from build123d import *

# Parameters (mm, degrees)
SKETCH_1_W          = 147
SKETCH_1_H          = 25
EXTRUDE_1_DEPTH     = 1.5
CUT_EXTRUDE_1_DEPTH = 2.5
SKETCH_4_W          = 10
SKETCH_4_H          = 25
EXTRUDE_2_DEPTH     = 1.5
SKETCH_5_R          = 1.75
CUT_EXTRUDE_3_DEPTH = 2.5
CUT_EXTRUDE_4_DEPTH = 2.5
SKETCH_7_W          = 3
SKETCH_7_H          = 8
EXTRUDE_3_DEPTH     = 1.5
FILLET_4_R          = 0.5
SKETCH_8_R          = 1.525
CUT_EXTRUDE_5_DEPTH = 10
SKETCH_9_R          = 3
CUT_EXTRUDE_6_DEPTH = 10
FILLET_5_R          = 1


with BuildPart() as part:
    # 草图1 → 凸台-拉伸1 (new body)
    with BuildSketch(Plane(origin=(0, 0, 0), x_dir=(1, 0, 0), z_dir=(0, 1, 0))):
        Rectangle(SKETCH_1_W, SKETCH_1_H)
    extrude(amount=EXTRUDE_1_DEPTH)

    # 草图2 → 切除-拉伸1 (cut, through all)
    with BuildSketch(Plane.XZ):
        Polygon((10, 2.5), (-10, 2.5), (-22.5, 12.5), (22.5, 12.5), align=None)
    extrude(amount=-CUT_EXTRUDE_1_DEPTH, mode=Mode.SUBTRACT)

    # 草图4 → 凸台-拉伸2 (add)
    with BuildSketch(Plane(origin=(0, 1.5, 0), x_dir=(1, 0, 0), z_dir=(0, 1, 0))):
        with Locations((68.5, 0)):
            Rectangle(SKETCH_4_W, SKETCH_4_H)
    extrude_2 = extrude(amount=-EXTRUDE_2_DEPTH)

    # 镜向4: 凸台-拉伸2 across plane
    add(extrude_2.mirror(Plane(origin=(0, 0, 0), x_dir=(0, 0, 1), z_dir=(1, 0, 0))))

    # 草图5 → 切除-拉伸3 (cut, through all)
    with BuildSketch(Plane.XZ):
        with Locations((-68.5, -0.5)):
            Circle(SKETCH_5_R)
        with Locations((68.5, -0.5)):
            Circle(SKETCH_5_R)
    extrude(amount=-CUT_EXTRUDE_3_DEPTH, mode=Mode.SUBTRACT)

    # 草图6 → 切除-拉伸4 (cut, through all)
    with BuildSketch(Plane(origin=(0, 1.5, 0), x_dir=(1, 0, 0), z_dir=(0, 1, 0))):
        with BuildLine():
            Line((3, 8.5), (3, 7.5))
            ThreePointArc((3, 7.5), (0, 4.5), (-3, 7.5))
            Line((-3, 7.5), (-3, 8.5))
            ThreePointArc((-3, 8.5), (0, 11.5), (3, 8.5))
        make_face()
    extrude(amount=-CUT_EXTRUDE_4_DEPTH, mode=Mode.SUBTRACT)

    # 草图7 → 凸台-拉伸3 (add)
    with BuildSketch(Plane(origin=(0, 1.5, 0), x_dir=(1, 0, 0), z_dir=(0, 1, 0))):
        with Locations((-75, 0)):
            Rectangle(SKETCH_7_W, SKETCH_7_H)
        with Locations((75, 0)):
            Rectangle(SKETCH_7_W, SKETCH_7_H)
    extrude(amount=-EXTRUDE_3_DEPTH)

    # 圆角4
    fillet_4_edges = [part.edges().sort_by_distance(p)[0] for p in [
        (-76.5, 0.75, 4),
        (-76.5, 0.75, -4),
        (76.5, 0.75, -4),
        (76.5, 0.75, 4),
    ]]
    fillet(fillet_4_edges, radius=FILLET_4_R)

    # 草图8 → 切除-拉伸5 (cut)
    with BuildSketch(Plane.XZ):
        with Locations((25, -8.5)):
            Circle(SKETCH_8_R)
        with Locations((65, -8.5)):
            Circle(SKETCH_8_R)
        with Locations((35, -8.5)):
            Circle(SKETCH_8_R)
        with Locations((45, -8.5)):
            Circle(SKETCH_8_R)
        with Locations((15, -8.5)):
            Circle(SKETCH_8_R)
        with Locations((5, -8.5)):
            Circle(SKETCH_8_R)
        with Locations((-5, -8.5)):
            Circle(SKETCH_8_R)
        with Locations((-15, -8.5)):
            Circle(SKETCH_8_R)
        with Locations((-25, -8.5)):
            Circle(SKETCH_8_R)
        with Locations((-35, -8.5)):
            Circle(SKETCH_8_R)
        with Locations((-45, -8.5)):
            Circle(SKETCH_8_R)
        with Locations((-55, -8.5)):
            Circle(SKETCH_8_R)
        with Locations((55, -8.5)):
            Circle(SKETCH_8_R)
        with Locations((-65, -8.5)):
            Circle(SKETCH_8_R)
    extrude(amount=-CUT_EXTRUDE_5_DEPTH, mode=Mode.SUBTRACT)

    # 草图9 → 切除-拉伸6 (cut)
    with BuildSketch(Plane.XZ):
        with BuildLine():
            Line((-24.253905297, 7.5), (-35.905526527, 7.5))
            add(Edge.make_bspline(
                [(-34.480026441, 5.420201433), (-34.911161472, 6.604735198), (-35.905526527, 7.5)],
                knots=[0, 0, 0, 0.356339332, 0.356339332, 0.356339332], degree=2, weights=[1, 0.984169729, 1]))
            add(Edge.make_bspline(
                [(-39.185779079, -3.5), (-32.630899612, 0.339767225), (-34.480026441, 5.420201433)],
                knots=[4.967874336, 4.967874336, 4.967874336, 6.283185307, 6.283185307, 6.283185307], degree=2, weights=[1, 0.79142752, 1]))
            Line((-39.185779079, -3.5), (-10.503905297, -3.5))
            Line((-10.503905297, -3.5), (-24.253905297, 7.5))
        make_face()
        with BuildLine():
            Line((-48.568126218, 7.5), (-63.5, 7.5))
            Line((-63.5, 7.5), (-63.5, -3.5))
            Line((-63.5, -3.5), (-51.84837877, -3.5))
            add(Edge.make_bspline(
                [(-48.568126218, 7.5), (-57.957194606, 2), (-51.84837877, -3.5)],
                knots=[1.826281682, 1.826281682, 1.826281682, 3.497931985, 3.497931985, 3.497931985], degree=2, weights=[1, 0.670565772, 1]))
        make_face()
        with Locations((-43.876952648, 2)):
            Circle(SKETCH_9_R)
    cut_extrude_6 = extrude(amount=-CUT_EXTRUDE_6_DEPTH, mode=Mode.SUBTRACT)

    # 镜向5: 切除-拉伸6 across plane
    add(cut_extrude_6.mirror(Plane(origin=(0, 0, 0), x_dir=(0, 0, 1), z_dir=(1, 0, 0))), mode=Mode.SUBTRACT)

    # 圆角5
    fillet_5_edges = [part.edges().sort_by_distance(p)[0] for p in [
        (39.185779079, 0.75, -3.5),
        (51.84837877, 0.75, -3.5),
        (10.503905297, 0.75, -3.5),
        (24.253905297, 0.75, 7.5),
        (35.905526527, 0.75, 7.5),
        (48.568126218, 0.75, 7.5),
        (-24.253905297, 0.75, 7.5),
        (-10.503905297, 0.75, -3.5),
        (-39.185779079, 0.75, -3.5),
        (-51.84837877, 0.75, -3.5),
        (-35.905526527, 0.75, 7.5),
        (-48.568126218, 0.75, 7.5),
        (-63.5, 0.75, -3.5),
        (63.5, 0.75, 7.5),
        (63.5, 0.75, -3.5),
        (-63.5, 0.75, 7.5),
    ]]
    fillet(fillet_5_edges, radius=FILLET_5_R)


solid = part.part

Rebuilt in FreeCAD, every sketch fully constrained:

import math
import FreeCAD as App
import Part
import Sketcher
Q = App.Units.Quantity


def edges_at(feature, points):
    """Names of the edges that pass closest to the given points."""
    edges = feature.Shape.Edges
    near = lambda p: min(range(len(edges)), key=lambda i: edges[i].distToShape(Part.Vertex(*p))[0])
    return sorted({f"Edge{near(p) + 1}" for p in points})


def add_polygon(sketch, points):
    """Adds a closed chain of lines whose ends are joined by coincident constraints."""
    first, n = sketch.GeometryCount, len(points)
    for a, b in zip(points, points[1:] + points[:1]):
        sketch.addGeometry(Part.LineSegment(App.Vector(*a, 0), App.Vector(*b, 0)), False)
    for i in range(n):
        sketch.addConstraint(Sketcher.Constraint("Coincident", first + i, 2, first + (i + 1) % n, 1))

doc = App.newDocument("Part")
body = doc.addObject("PartDesign::Body", "Body")

# Sketch on XZ plane
sketch1 = body.newObject("Sketcher::SketchObject", "Sketch")
sketch1.AttachmentSupport = (doc.getObject("XZ_Plane"), [""])
sketch1.MapMode = "FlatFace"
add_polygon(sketch1, [(-74, -12), (-74, 12), (74, 12), (74, -12)])  # lines 0-3
sketch1.addConstraint(Sketcher.Constraint("Vertical", 0))
sketch1.addConstraint(Sketcher.Constraint("Horizontal", 1))
sketch1.addConstraint(Sketcher.Constraint("Vertical", 2))
sketch1.addConstraint(Sketcher.Constraint("Horizontal", 3))
sketch1.addConstraint(Sketcher.Constraint("Symmetric", 0, 2, 2, 2, -1, 1))
sketch1.addConstraint(Sketcher.Constraint("DistanceX", 1, 1, 1, 2, Q("147 mm")))
sketch1.addConstraint(Sketcher.Constraint("DistanceY", 0, 1, 0, 2, Q("25 mm")))
pad1 = body.newObject("PartDesign::Pad", "Pad")
pad1.Profile = sketch1
pad1.Length = 1.5
pad1.Reversed = True

# Sketch on XZ plane
sketch2 = body.newObject("Sketcher::SketchObject", "Sketch001")
sketch2.AttachmentSupport = (doc.getObject("XZ_Plane"), [""])
sketch2.MapMode = "FlatFace"
add_polygon(sketch2, [(-10, 2), (10, 2), (22, 12), (-22, 12)])  # lines 0-3
sketch2.addConstraint(Sketcher.Constraint("Horizontal", 0))
sketch2.addConstraint(Sketcher.Constraint("Horizontal", 2))
sketch2.addConstraint(Sketcher.Constraint("Equal", 1, 3))
sketch2.addConstraint(Sketcher.Constraint("DistanceX", 0, 1, 0, 2, Q("20 mm")))
sketch2.addConstraint(Sketcher.Constraint("DistanceX", 2, 2, 2, 1, Q("45 mm")))
sketch2.addConstraint(Sketcher.Constraint("DistanceX", -1, 1, 0, 2, Q("10 mm")))
sketch2.addConstraint(Sketcher.Constraint("DistanceY", 0, 2, 1, 2, Q("10 mm")))
sketch2.addConstraint(Sketcher.Constraint("DistanceY", -1, 1, 0, 2, Q("2.5 mm")))
pocket1 = body.newObject("PartDesign::Pocket", "Pocket")
pocket1.Profile = sketch2
pocket1.Type = "ThroughAll"

# Sketch on XZ plane
sketch3 = body.newObject("Sketcher::SketchObject", "Sketch002")
sketch3.AttachmentSupport = (doc.getObject("XZ_Plane"), [""])
sketch3.MapMode = "FlatFace"
sketch3.AttachmentOffset = App.Placement(App.Vector(0, 0, -1.5), App.Rotation())
add_polygon(sketch3, [(64, -12), (64, 12), (74, 12), (74, -12)])  # lines 0-3
sketch3.addConstraint(Sketcher.Constraint("Vertical", 0))
sketch3.addConstraint(Sketcher.Constraint("Horizontal", 1))
sketch3.addConstraint(Sketcher.Constraint("Vertical", 2))
sketch3.addConstraint(Sketcher.Constraint("Horizontal", 3))
sketch3.addConstraint(Sketcher.Constraint("DistanceX", 1, 1, 1, 2, Q("10 mm")))
sketch3.addConstraint(Sketcher.Constraint("DistanceY", 0, 1, 0, 2, Q("25 mm")))
sketch3.addConstraint(Sketcher.Constraint("DistanceX", -1, 1, 0, 2, Q("63.5 mm")))
sketch3.addConstraint(Sketcher.Constraint("DistanceY", -1, 1, 0, 2, Q("12.5 mm")))
pad2 = body.newObject("PartDesign::Pad", "Pad001")
pad2.Profile = sketch3
pad2.Length = 1.5
doc.recompute()

mirrored = body.newObject("PartDesign::Mirrored", "Mirrored")
mirrored.Originals = [pad2]
mirrored.MirrorPlane = (doc.getObject("YZ_Plane"), [""])
body.Tip = mirrored

# Sketch on XZ plane
sketch4 = body.newObject("Sketcher::SketchObject", "Sketch003")
sketch4.AttachmentSupport = (doc.getObject("XZ_Plane"), [""])
sketch4.MapMode = "FlatFace"
sketch4.addGeometry(Part.Circle(App.Vector(-68.5, -0.5, 0), App.Vector(0, 0, 1), 1.8), False)
sketch4.addGeometry(Part.Circle(App.Vector(68.5, -0.5, 0), App.Vector(0, 0, 1), 1.8), False)
sketch4.addConstraint(Sketcher.Constraint("Equal", 0, 1))
sketch4.addConstraint(Sketcher.Constraint("Symmetric", 0, 3, 1, 3, -2))
sketch4.addConstraint(Sketcher.Constraint("Diameter", 0, Q("3.5 mm")))
sketch4.addConstraint(Sketcher.Constraint("DistanceX", 0, 3, 1, 3, Q("137 mm")))
sketch4.addConstraint(Sketcher.Constraint("DistanceY", 0, 3, -1, 1, Q("0.5 mm")))
pocket2 = body.newObject("PartDesign::Pocket", "Pocket001")
pocket2.Profile = sketch4
pocket2.Type = "ThroughAll"

# Sketch on XZ plane
sketch5 = body.newObject("Sketcher::SketchObject", "Sketch004")
sketch5.AttachmentSupport = (doc.getObject("XZ_Plane"), [""])
sketch5.MapMode = "FlatFace"
sketch5.AttachmentOffset = App.Placement(App.Vector(0, 0, -1.5), App.Rotation())
sketch5.addGeometry(Part.LineSegment(App.Vector(3, -7.5, 0), App.Vector(3, -8.5, 0)), False)
sketch5.addGeometry(Part.ArcOfCircle(Part.Circle(App.Vector(0, -8.5, 0), App.Vector(0, 0, 1), 3), math.radians(180), math.radians(360)), False)
sketch5.addGeometry(Part.LineSegment(App.Vector(-3, -8.5, 0), App.Vector(-3, -7.5, 0)), False)
sketch5.addGeometry(Part.ArcOfCircle(Part.Circle(App.Vector(0, -7.5, 0), App.Vector(0, 0, 1), 3), math.radians(0), math.radians(180)), False)
sketch5.addConstraint(Sketcher.Constraint("Tangent", 0, 2, 1, 2))
sketch5.addConstraint(Sketcher.Constraint("Tangent", 1, 1, 2, 1))
sketch5.addConstraint(Sketcher.Constraint("Tangent", 2, 2, 3, 2))
sketch5.addConstraint(Sketcher.Constraint("Tangent", 3, 1, 0, 1))
sketch5.addConstraint(Sketcher.Constraint("Vertical", 0))
sketch5.addConstraint(Sketcher.Constraint("Vertical", 2))
sketch5.addConstraint(Sketcher.Constraint("PointOnObject", 1, 3, -2))
sketch5.addConstraint(Sketcher.Constraint("Radius", 1, Q("3 mm")))
sketch5.addConstraint(Sketcher.Constraint("DistanceY", 0, 2, 0, 1, Q("1 mm")))
sketch5.addConstraint(Sketcher.Constraint("DistanceY", 1, 3, -1, 1, Q("8.5 mm")))
pocket3 = body.newObject("PartDesign::Pocket", "Pocket002")
pocket3.Profile = sketch5
pocket3.Type = "ThroughAll"
pocket3.Reversed = True

# Sketch on XZ plane
sketch6 = body.newObject("Sketcher::SketchObject", "Sketch005")
sketch6.AttachmentSupport = (doc.getObject("XZ_Plane"), [""])
sketch6.MapMode = "FlatFace"
sketch6.AttachmentOffset = App.Placement(App.Vector(0, 0, -1.5), App.Rotation())
add_polygon(sketch6, [(-76.5, -4), (-76.5, 4), (-73.5, 4), (-73.5, -4)])  # lines 0-3
add_polygon(sketch6, [(73.5, -4), (73.5, 4), (76.5, 4), (76.5, -4)])  # lines 4-7
sketch6.addConstraint(Sketcher.Constraint("Vertical", 0))
sketch6.addConstraint(Sketcher.Constraint("Horizontal", 1))
sketch6.addConstraint(Sketcher.Constraint("Vertical", 2))
sketch6.addConstraint(Sketcher.Constraint("Horizontal", 3))
sketch6.addConstraint(Sketcher.Constraint("Vertical", 4))
sketch6.addConstraint(Sketcher.Constraint("Horizontal", 5))
sketch6.addConstraint(Sketcher.Constraint("Vertical", 6))
sketch6.addConstraint(Sketcher.Constraint("Horizontal", 7))
sketch6.addConstraint(Sketcher.Constraint("Symmetric", 2, 2, 4, 2, -1, 1))
sketch6.addConstraint(Sketcher.Constraint("Symmetric", 0, 2, 6, 2, -1, 1))
sketch6.addConstraint(Sketcher.Constraint("Horizontal", 1, 2, 4, 2))
sketch6.addConstraint(Sketcher.Constraint("DistanceX", 1, 1, 1, 2, Q("3 mm")))
sketch6.addConstraint(Sketcher.Constraint("DistanceY", 0, 1, 0, 2, Q("8 mm")))
sketch6.addConstraint(Sketcher.Constraint("DistanceX", 1, 2, 4, 2, Q("147 mm")))
pad3 = body.newObject("PartDesign::Pad", "Pad002")
pad3.Profile = sketch6
pad3.Length = 1.5
doc.recompute()

fillet = body.newObject("PartDesign::Fillet", "Fillet")
fillet.Base = (pad3, edges_at(pad3, [
    (-76.5, 0.75, 4),
    (-76.5, 0.75, -4),
    (76.5, 0.75, -4),
    (76.5, 0.75, 4),
]))
fillet.Radius = 0.5

# Sketch on XZ plane
sketch7 = body.newObject("Sketcher::SketchObject", "Sketch006")
sketch7.AttachmentSupport = (doc.getObject("XZ_Plane"), [""])
sketch7.MapMode = "FlatFace"
sketch7.addGeometry(Part.Circle(App.Vector(25, -8.5, 0), App.Vector(0, 0, 1), 1.5), False)
sketch7.addGeometry(Part.Circle(App.Vector(65, -8.5, 0), App.Vector(0, 0, 1), 1.5), False)
sketch7.addGeometry(Part.Circle(App.Vector(35, -8.5, 0), App.Vector(0, 0, 1), 1.5), False)
sketch7.addGeometry(Part.Circle(App.Vector(45, -8.5, 0), App.Vector(0, 0, 1), 1.5), False)
sketch7.addGeometry(Part.Circle(App.Vector(15, -8.5, 0), App.Vector(0, 0, 1), 1.5), False)
sketch7.addGeometry(Part.Circle(App.Vector(5, -8.5, 0), App.Vector(0, 0, 1), 1.5), False)
sketch7.addGeometry(Part.Circle(App.Vector(-5, -8.5, 0), App.Vector(0, 0, 1), 1.5), False)
sketch7.addGeometry(Part.Circle(App.Vector(-15, -8.5, 0), App.Vector(0, 0, 1), 1.5), False)
sketch7.addGeometry(Part.Circle(App.Vector(-25, -8.5, 0), App.Vector(0, 0, 1), 1.5), False)
sketch7.addGeometry(Part.Circle(App.Vector(-35, -8.5, 0), App.Vector(0, 0, 1), 1.5), False)
sketch7.addGeometry(Part.Circle(App.Vector(-45, -8.5, 0), App.Vector(0, 0, 1), 1.5), False)
sketch7.addGeometry(Part.Circle(App.Vector(-55, -8.5, 0), App.Vector(0, 0, 1), 1.5), False)
sketch7.addGeometry(Part.Circle(App.Vector(55, -8.5, 0), App.Vector(0, 0, 1), 1.5), False)
sketch7.addGeometry(Part.Circle(App.Vector(-65, -8.5, 0), App.Vector(0, 0, 1), 1.5), False)
sketch7.addConstraint(Sketcher.Constraint("Equal", 0, 1))
sketch7.addConstraint(Sketcher.Constraint("Equal", 1, 2))
sketch7.addConstraint(Sketcher.Constraint("Equal", 2, 3))
sketch7.addConstraint(Sketcher.Constraint("Equal", 3, 4))
sketch7.addConstraint(Sketcher.Constraint("Equal", 4, 5))
sketch7.addConstraint(Sketcher.Constraint("Equal", 5, 6))
sketch7.addConstraint(Sketcher.Constraint("Equal", 6, 7))
sketch7.addConstraint(Sketcher.Constraint("Equal", 7, 8))
sketch7.addConstraint(Sketcher.Constraint("Equal", 8, 9))
sketch7.addConstraint(Sketcher.Constraint("Equal", 9, 10))
sketch7.addConstraint(Sketcher.Constraint("Equal", 10, 11))
sketch7.addConstraint(Sketcher.Constraint("Equal", 11, 12))
sketch7.addConstraint(Sketcher.Constraint("Equal", 12, 13))
sketch7.addConstraint(Sketcher.Constraint("Symmetric", 5, 3, 6, 3, -2))
sketch7.addConstraint(Sketcher.Constraint("Symmetric", 4, 3, 7, 3, -2))
sketch7.addConstraint(Sketcher.Constraint("Symmetric", 0, 3, 8, 3, -2))
sketch7.addConstraint(Sketcher.Constraint("Symmetric", 2, 3, 9, 3, -2))
sketch7.addConstraint(Sketcher.Constraint("Symmetric", 3, 3, 10, 3, -2))
sketch7.addConstraint(Sketcher.Constraint("Symmetric", 11, 3, 12, 3, -2))
sketch7.addConstraint(Sketcher.Constraint("Symmetric", 1, 3, 13, 3, -2))
sketch7.addConstraint(Sketcher.Constraint("Horizontal", 0, 3, 1, 3))
sketch7.addConstraint(Sketcher.Constraint("Horizontal", 1, 3, 2, 3))
sketch7.addConstraint(Sketcher.Constraint("Horizontal", 2, 3, 3, 3))
sketch7.addConstraint(Sketcher.Constraint("Horizontal", 3, 3, 4, 3))
sketch7.addConstraint(Sketcher.Constraint("Horizontal", 4, 3, 5, 3))
sketch7.addConstraint(Sketcher.Constraint("Horizontal", 10, 3, 11, 3))
sketch7.addConstraint(Sketcher.Constraint("Diameter", 0, Q("3.05 mm")))
sketch7.addConstraint(Sketcher.Constraint("DistanceX", -1, 1, 0, 3, Q("25 mm")))
sketch7.addConstraint(Sketcher.Constraint("DistanceX", -1, 1, 1, 3, Q("65 mm")))
sketch7.addConstraint(Sketcher.Constraint("DistanceX", -1, 1, 2, 3, Q("35 mm")))
sketch7.addConstraint(Sketcher.Constraint("DistanceX", -1, 1, 3, 3, Q("45 mm")))
sketch7.addConstraint(Sketcher.Constraint("DistanceX", -1, 1, 4, 3, Q("15 mm")))
sketch7.addConstraint(Sketcher.Constraint("DistanceX", -1, 1, 5, 3, Q("5 mm")))
sketch7.addConstraint(Sketcher.Constraint("DistanceX", 11, 3, -1, 1, Q("55 mm")))
sketch7.addConstraint(Sketcher.Constraint("DistanceY", 0, 3, -1, 1, Q("8.5 mm")))
pocket4 = body.newObject("PartDesign::Pocket", "Pocket003")
pocket4.Profile = sketch7
pocket4.Length = 10

# Sketch on XZ plane
sketch8 = body.newObject("Sketcher::SketchObject", "Sketch007")
sketch8.AttachmentSupport = (doc.getObject("XZ_Plane"), [""])
sketch8.MapMode = "FlatFace"
sketch8.addGeometry(Part.LineSegment(App.Vector(-24.253905, 7.5, 0), App.Vector(-35.905527, 7.5, 0)), False)
sketch8.addGeometry(Part.BSplineCurve([App.Vector(-34.480026, 5.420201, 0), App.Vector(-34.911161, 6.604735, 0), App.Vector(-35.905527, 7.5, 0)], [3, 3], [0, 0.356339332], False, 2, [1, 0.984169729, 1], False), False)
sketch8.addGeometry(Part.BSplineCurve([App.Vector(-39.185779, -3.5, 0), App.Vector(-32.6309, 0.339767, 0), App.Vector(-34.480026, 5.420201, 0)], [3, 3], [4.967874336, 6.283185307], False, 2, [1, 0.79142752, 1], False), False)
sketch8.addGeometry(Part.LineSegment(App.Vector(-39.185779, -3.5, 0), App.Vector(-10.503905, -3.5, 0)), False)
sketch8.addGeometry(Part.LineSegment(App.Vector(-10.503905, -3.5, 0), App.Vector(-24.253905, 7.5, 0)), False)
sketch8.addGeometry(Part.LineSegment(App.Vector(-48.568126, 7.5, 0), App.Vector(-63.5, 7.5, 0)), False)
sketch8.addGeometry(Part.LineSegment(App.Vector(-63.5, 7.5, 0), App.Vector(-63.5, -3.5, 0)), False)
sketch8.addGeometry(Part.LineSegment(App.Vector(-63.5, -3.5, 0), App.Vector(-51.848379, -3.5, 0)), False)
sketch8.addGeometry(Part.BSplineCurve([App.Vector(-48.568126, 7.5, 0), App.Vector(-57.957195, 2, 0), App.Vector(-51.848379, -3.5, 0)], [3, 3], [1.826281682, 3.497931985], False, 2, [1, 0.670565772, 1], False), False)
sketch8.addGeometry(Part.Circle(App.Vector(-43.876953, 2, 0), App.Vector(0, 0, 1), 3), False)
sketch8.addConstraint(Sketcher.Constraint("Block", 1))
sketch8.addConstraint(Sketcher.Constraint("Block", 2))
sketch8.addConstraint(Sketcher.Constraint("Block", 8))
sketch8.addConstraint(Sketcher.Constraint("Coincident", 0, 2, 1, 2))
sketch8.addConstraint(Sketcher.Constraint("Coincident", 2, 1, 3, 1))
sketch8.addConstraint(Sketcher.Constraint("Coincident", 3, 2, 4, 1))
sketch8.addConstraint(Sketcher.Constraint("Coincident", 4, 2, 0, 1))
sketch8.addConstraint(Sketcher.Constraint("Coincident", 5, 2, 6, 1))
sketch8.addConstraint(Sketcher.Constraint("Coincident", 6, 2, 7, 1))
sketch8.addConstraint(Sketcher.Constraint("Coincident", 7, 2, 8, 2))
sketch8.addConstraint(Sketcher.Constraint("Coincident", 8, 1, 5, 1))
sketch8.addConstraint(Sketcher.Constraint("Horizontal", 0))
sketch8.addConstraint(Sketcher.Constraint("Horizontal", 3))
sketch8.addConstraint(Sketcher.Constraint("Horizontal", 5))
sketch8.addConstraint(Sketcher.Constraint("Vertical", 6))
sketch8.addConstraint(Sketcher.Constraint("Horizontal", 7))
sketch8.addConstraint(Sketcher.Constraint("Diameter", 9, Q("6 mm")))
sketch8.addConstraint(Sketcher.Constraint("DistanceY", -1, 1, 9, 3, Q("2 mm")))
sketch8.addConstraint(Sketcher.Constraint("DistanceX", 5, 2, -1, 1, Q("63.5 mm")))
sketch8.addConstraint(Sketcher.Constraint("DistanceX", 4, 2, 3, 2, Q("13.75 mm")))
sketch8.addConstraint(Sketcher.Constraint("DistanceX", 0, 2, 0, 1, Q("11.651621 mm")))
sketch8.addConstraint(Sketcher.Constraint("DistanceX", 9, 3, -1, 1, Q("43.876953 mm")))
pocket5 = body.newObject("PartDesign::Pocket", "Pocket004")
pocket5.Profile = sketch8
pocket5.Length = 10
doc.recompute()

mirrored2 = body.newObject("PartDesign::Mirrored", "Mirrored001")
mirrored2.Originals = [pocket5]
mirrored2.MirrorPlane = (doc.getObject("YZ_Plane"), [""])
body.Tip = mirrored2
doc.recompute()

fillet2 = body.newObject("PartDesign::Fillet", "Fillet001")
fillet2.Base = (mirrored2, edges_at(mirrored2, [
    (39.186, 0.75, -3.5),
    (51.848, 0.75, -3.5),
    (10.504, 0.75, -3.5),
    (24.254, 0.75, 7.5),
    (35.906, 0.75, 7.5),
    (48.568, 0.75, 7.5),
    (-24.254, 0.75, 7.5),
    (-10.504, 0.75, -3.5),
    (-39.186, 0.75, -3.5),
    (-51.848, 0.75, -3.5),
    (-35.906, 0.75, 7.5),
    (-48.568, 0.75, 7.5),
    (-63.5, 0.75, -3.5),
    (63.5, 0.75, 7.5),
    (63.5, 0.75, -3.5),
    (-63.5, 0.75, 7.5),
]))
fillet2.Radius = 1

doc.recompute()
